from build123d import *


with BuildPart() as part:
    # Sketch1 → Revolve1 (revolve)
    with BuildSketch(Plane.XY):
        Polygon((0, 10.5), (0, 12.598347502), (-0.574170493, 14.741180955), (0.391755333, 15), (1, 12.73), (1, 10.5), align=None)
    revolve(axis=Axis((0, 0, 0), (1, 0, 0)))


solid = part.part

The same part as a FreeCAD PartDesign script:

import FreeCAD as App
import Part
import Sketcher
from FreeCAD import Vector
Q = App.Units.Quantity


def add_polygon(sketch, points):
    """Adds a closed chain of lines whose ends are joined by coincident constraints."""
    first, n = sketch.GeometryCount, len(points)
    for a, b in zip(points, points[1:] + points[:1]):
        sketch.addGeometry(Part.LineSegment(App.Vector(*a, 0), App.Vector(*b, 0)), False)
    for i in range(n):
        sketch.addConstraint(Sketcher.Constraint("Coincident", first + i, 2, first + (i + 1) % n, 1))

doc = App.newDocument("Part")
params = doc.addObject("Spreadsheet::Sheet", "Params")
for row, (alias, value) in enumerate([
    ("sketch1_width", "1 mm"),
    ("sketch1_length", "1 mm"),
    ("sketch1_height", "2.23 mm"),
    ("revolution_angle", "360 deg"),
], start=1):
    params.set(f"A{row}", alias)
    params.set(f"B{row}", "=" + value)
    params.setAlias(f"B{row}", alias)

body = doc.addObject("PartDesign::Body", "Body")

sketch1 = body.newObject("Sketcher::SketchObject", "Sketch")
sketch1.AttachmentSupport = (doc.getObject("XY_Plane"), [""])
sketch1.MapMode = "FlatFace"
add_polygon(sketch1, [(0, 12.6), (0, 10.5), (1, 10.5), (1, 12.7), (0.4, 15), (-0.6, 14.7)])
sketch1.addConstraint(Sketcher.Constraint("Vertical", 0))
sketch1.addConstraint(Sketcher.Constraint("Horizontal", 1))
sketch1.addConstraint(Sketcher.Constraint("Vertical", 2))
sketch1.addConstraint(Sketcher.Constraint("PointOnObject", 0, 2, -2))
sketch1.addConstraint(Sketcher.Constraint("Perpendicular", 3, 4))
sketch1.addConstraint(Sketcher.Constraint("Perpendicular", 4, 5))
sketch1.addConstraint(Sketcher.Constraint("DistanceX", 1, 1, 1, 2, 1.0))
sketch1.addConstraint(Sketcher.Constraint("Angle", 3, Q("105 deg")))
sketch1.addConstraint(Sketcher.Constraint("Distance", 4, 1.0))
sketch1.addConstraint(Sketcher.Constraint("DistanceY", -1, 1, 3, 2, 15.0))
sketch1.addConstraint(Sketcher.Constraint("DistanceY", 2, 1, 2, 2, 2.23))
sketch1.addConstraint(Sketcher.Constraint("DistanceY", -1, 1, 0, 2, 10.5))
sketch1.setExpression("Constraints[12]", "Params.sketch1_width")
sketch1.setExpression("Constraints[14]", "Params.sketch1_length")
sketch1.setExpression("Constraints[16]", "Params.sketch1_height")
revolution = body.newObject("PartDesign::Revolution", "Revolution")
revolution.Profile = sketch1
revolution.ReferenceAxis = (sketch1, ["H_Axis"])
revolution.setExpression("Angle", "Params.revolution_angle")

doc.recompute()
